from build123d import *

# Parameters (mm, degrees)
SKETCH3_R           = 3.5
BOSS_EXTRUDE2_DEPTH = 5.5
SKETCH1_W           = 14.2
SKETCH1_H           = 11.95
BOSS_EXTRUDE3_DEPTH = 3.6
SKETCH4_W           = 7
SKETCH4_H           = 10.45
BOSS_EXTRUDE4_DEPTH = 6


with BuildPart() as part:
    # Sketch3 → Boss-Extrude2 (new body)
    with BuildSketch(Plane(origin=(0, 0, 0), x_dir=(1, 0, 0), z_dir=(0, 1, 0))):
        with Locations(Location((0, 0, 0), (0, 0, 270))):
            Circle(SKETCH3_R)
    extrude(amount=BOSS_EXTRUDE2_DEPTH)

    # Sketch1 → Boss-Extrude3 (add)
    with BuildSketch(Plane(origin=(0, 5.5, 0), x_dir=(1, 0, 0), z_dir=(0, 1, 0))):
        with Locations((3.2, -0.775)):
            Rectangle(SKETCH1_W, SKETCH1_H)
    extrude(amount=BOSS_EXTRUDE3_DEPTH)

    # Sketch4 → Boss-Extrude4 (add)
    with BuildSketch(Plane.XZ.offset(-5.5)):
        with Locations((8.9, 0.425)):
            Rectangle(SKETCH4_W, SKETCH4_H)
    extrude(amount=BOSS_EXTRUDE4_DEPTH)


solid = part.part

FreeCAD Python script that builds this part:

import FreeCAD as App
import Part
import Sketcher

V = App.Vector

doc = App.newDocument("Part")
body = doc.addObject("PartDesign::Body", "Body")

# Sketch on XZ plane
sketch1 = body.newObject("Sketcher::SketchObject", "Sketch")
sketch1.AttachmentSupport = (doc.getObject("XZ_Plane"), [""])
sketch1.MapMode = "FlatFace"
sketch1.addGeometry(Part.Circle(V(0, 0, 0), V(0, 0, 1), 3.5), False)
sketch1.addConstraint(Sketcher.Constraint("Coincident", 0, 3, -1, 1))
sketch1.addConstraint(Sketcher.Constraint("Diameter", 0, 7.0))
pad1 = body.newObject("PartDesign::Pad", "Pad")
pad1.Profile = sketch1
pad1.Length = 5.5
pad1.Reversed = True

# Sketch on XZ plane
sketch2 = body.newObject("Sketcher::SketchObject", "Sketch001")
sketch2.AttachmentSupport = (doc.getObject("XZ_Plane"), [""])
sketch2.MapMode = "FlatFace"
sketch2.AttachmentOffset = App.Placement(V(0, 0, -5.5), App.Rotation())
sketch2.addGeometry(Part.LineSegment(V(-4, -5, 0), V(-4, 7, 0)), False)
sketch2.addGeometry(Part.LineSegment(V(-4, 7, 0), V(10, 7, 0)), False)
sketch2.addGeometry(Part.LineSegment(V(10, 7, 0), V(10, -5, 0)), False)
sketch2.addGeometry(Part.LineSegment(V(10, -5, 0), V(-4, -5, 0)), False)
sketch2.addConstraint(Sketcher.Constraint("Coincident", 0, 2, 1, 1))
sketch2.addConstraint(Sketcher.Constraint("Coincident", 1, 2, 2, 1))
sketch2.addConstraint(Sketcher.Constraint("Coincident", 2, 2, 3, 1))
sketch2.addConstraint(Sketcher.Constraint("Coincident", 3, 2, 0, 1))
sketch2.addConstraint(Sketcher.Constraint("Vertical", 0))
sketch2.addConstraint(Sketcher.Constraint("Horizontal", 1))
sketch2.addConstraint(Sketcher.Constraint("Vertical", 2))
sketch2.addConstraint(Sketcher.Constraint("Horizontal", 3))
sketch2.addConstraint(Sketcher.Constraint("DistanceX", 1, 1, 1, 2, 14.2))
sketch2.addConstraint(Sketcher.Constraint("DistanceY", 0, 1, 0, 2, 11.95))
sketch2.addConstraint(Sketcher.Constraint("DistanceX", 0, 2, -1, 1, 3.9))
sketch2.addConstraint(Sketcher.Constraint("DistanceY", 2, 2, -1, 1, 5.2))
pad2 = body.newObject("PartDesign::Pad", "Pad001")
pad2.Profile = sketch2
pad2.Length = 3.6
pad2.Reversed = True

# Sketch on XZ plane
sketch3 = body.newObject("Sketcher::SketchObject", "Sketch002")
sketch3.AttachmentSupport = (doc.getObject("XZ_Plane"), [""])
sketch3.MapMode = "FlatFace"
sketch3.AttachmentOffset = App.Placement(V(0, 0, -5.5), App.Rotation())
sketch3.addGeometry(Part.LineSegment(V(5, 6, 0), V(5, -5, 0)), False)
sketch3.addGeometry(Part.LineSegment(V(5, -5, 0), V(12, -5, 0)), False)
sketch3.addGeometry(Part.LineSegment(V(12, -5, 0), V(12, 6, 0)), False)
sketch3.addGeometry(Part.LineSegment(V(12, 6, 0), V(5, 6, 0)), False)
sketch3.addConstraint(Sketcher.Constraint("Coincident", 0, 2, 1, 1))
sketch3.addConstraint(Sketcher.Constraint("Coincident", 1, 2, 2, 1))
sketch3.addConstraint(Sketcher.Constraint("Coincident", 2, 2, 3, 1))
sketch3.addConstraint(Sketcher.Constraint("Coincident", 3, 2, 0, 1))
sketch3.addConstraint(Sketcher.Constraint("Vertical", 0))
sketch3.addConstraint(Sketcher.Constraint("Horizontal", 1))
sketch3.addConstraint(Sketcher.Constraint("Vertical", 2))
sketch3.addConstraint(Sketcher.Constraint("Horizontal", 3))
sketch3.addConstraint(Sketcher.Constraint("DistanceX", 1, 1, 1, 2, 7.0))
sketch3.addConstraint(Sketcher.Constraint("DistanceY", 0, 2, 0, 1, 10.45))
sketch3.addConstraint(Sketcher.Constraint("DistanceX", -1, 1, 0, 2, 5.4))
sketch3.addConstraint(Sketcher.Constraint("DistanceY", 0, 2, -1, 1, 4.8))
pad3 = body.newObject("PartDesign::Pad", "Pad002")
pad3.Profile = sketch3
pad3.Length = 6

doc.recompute()
